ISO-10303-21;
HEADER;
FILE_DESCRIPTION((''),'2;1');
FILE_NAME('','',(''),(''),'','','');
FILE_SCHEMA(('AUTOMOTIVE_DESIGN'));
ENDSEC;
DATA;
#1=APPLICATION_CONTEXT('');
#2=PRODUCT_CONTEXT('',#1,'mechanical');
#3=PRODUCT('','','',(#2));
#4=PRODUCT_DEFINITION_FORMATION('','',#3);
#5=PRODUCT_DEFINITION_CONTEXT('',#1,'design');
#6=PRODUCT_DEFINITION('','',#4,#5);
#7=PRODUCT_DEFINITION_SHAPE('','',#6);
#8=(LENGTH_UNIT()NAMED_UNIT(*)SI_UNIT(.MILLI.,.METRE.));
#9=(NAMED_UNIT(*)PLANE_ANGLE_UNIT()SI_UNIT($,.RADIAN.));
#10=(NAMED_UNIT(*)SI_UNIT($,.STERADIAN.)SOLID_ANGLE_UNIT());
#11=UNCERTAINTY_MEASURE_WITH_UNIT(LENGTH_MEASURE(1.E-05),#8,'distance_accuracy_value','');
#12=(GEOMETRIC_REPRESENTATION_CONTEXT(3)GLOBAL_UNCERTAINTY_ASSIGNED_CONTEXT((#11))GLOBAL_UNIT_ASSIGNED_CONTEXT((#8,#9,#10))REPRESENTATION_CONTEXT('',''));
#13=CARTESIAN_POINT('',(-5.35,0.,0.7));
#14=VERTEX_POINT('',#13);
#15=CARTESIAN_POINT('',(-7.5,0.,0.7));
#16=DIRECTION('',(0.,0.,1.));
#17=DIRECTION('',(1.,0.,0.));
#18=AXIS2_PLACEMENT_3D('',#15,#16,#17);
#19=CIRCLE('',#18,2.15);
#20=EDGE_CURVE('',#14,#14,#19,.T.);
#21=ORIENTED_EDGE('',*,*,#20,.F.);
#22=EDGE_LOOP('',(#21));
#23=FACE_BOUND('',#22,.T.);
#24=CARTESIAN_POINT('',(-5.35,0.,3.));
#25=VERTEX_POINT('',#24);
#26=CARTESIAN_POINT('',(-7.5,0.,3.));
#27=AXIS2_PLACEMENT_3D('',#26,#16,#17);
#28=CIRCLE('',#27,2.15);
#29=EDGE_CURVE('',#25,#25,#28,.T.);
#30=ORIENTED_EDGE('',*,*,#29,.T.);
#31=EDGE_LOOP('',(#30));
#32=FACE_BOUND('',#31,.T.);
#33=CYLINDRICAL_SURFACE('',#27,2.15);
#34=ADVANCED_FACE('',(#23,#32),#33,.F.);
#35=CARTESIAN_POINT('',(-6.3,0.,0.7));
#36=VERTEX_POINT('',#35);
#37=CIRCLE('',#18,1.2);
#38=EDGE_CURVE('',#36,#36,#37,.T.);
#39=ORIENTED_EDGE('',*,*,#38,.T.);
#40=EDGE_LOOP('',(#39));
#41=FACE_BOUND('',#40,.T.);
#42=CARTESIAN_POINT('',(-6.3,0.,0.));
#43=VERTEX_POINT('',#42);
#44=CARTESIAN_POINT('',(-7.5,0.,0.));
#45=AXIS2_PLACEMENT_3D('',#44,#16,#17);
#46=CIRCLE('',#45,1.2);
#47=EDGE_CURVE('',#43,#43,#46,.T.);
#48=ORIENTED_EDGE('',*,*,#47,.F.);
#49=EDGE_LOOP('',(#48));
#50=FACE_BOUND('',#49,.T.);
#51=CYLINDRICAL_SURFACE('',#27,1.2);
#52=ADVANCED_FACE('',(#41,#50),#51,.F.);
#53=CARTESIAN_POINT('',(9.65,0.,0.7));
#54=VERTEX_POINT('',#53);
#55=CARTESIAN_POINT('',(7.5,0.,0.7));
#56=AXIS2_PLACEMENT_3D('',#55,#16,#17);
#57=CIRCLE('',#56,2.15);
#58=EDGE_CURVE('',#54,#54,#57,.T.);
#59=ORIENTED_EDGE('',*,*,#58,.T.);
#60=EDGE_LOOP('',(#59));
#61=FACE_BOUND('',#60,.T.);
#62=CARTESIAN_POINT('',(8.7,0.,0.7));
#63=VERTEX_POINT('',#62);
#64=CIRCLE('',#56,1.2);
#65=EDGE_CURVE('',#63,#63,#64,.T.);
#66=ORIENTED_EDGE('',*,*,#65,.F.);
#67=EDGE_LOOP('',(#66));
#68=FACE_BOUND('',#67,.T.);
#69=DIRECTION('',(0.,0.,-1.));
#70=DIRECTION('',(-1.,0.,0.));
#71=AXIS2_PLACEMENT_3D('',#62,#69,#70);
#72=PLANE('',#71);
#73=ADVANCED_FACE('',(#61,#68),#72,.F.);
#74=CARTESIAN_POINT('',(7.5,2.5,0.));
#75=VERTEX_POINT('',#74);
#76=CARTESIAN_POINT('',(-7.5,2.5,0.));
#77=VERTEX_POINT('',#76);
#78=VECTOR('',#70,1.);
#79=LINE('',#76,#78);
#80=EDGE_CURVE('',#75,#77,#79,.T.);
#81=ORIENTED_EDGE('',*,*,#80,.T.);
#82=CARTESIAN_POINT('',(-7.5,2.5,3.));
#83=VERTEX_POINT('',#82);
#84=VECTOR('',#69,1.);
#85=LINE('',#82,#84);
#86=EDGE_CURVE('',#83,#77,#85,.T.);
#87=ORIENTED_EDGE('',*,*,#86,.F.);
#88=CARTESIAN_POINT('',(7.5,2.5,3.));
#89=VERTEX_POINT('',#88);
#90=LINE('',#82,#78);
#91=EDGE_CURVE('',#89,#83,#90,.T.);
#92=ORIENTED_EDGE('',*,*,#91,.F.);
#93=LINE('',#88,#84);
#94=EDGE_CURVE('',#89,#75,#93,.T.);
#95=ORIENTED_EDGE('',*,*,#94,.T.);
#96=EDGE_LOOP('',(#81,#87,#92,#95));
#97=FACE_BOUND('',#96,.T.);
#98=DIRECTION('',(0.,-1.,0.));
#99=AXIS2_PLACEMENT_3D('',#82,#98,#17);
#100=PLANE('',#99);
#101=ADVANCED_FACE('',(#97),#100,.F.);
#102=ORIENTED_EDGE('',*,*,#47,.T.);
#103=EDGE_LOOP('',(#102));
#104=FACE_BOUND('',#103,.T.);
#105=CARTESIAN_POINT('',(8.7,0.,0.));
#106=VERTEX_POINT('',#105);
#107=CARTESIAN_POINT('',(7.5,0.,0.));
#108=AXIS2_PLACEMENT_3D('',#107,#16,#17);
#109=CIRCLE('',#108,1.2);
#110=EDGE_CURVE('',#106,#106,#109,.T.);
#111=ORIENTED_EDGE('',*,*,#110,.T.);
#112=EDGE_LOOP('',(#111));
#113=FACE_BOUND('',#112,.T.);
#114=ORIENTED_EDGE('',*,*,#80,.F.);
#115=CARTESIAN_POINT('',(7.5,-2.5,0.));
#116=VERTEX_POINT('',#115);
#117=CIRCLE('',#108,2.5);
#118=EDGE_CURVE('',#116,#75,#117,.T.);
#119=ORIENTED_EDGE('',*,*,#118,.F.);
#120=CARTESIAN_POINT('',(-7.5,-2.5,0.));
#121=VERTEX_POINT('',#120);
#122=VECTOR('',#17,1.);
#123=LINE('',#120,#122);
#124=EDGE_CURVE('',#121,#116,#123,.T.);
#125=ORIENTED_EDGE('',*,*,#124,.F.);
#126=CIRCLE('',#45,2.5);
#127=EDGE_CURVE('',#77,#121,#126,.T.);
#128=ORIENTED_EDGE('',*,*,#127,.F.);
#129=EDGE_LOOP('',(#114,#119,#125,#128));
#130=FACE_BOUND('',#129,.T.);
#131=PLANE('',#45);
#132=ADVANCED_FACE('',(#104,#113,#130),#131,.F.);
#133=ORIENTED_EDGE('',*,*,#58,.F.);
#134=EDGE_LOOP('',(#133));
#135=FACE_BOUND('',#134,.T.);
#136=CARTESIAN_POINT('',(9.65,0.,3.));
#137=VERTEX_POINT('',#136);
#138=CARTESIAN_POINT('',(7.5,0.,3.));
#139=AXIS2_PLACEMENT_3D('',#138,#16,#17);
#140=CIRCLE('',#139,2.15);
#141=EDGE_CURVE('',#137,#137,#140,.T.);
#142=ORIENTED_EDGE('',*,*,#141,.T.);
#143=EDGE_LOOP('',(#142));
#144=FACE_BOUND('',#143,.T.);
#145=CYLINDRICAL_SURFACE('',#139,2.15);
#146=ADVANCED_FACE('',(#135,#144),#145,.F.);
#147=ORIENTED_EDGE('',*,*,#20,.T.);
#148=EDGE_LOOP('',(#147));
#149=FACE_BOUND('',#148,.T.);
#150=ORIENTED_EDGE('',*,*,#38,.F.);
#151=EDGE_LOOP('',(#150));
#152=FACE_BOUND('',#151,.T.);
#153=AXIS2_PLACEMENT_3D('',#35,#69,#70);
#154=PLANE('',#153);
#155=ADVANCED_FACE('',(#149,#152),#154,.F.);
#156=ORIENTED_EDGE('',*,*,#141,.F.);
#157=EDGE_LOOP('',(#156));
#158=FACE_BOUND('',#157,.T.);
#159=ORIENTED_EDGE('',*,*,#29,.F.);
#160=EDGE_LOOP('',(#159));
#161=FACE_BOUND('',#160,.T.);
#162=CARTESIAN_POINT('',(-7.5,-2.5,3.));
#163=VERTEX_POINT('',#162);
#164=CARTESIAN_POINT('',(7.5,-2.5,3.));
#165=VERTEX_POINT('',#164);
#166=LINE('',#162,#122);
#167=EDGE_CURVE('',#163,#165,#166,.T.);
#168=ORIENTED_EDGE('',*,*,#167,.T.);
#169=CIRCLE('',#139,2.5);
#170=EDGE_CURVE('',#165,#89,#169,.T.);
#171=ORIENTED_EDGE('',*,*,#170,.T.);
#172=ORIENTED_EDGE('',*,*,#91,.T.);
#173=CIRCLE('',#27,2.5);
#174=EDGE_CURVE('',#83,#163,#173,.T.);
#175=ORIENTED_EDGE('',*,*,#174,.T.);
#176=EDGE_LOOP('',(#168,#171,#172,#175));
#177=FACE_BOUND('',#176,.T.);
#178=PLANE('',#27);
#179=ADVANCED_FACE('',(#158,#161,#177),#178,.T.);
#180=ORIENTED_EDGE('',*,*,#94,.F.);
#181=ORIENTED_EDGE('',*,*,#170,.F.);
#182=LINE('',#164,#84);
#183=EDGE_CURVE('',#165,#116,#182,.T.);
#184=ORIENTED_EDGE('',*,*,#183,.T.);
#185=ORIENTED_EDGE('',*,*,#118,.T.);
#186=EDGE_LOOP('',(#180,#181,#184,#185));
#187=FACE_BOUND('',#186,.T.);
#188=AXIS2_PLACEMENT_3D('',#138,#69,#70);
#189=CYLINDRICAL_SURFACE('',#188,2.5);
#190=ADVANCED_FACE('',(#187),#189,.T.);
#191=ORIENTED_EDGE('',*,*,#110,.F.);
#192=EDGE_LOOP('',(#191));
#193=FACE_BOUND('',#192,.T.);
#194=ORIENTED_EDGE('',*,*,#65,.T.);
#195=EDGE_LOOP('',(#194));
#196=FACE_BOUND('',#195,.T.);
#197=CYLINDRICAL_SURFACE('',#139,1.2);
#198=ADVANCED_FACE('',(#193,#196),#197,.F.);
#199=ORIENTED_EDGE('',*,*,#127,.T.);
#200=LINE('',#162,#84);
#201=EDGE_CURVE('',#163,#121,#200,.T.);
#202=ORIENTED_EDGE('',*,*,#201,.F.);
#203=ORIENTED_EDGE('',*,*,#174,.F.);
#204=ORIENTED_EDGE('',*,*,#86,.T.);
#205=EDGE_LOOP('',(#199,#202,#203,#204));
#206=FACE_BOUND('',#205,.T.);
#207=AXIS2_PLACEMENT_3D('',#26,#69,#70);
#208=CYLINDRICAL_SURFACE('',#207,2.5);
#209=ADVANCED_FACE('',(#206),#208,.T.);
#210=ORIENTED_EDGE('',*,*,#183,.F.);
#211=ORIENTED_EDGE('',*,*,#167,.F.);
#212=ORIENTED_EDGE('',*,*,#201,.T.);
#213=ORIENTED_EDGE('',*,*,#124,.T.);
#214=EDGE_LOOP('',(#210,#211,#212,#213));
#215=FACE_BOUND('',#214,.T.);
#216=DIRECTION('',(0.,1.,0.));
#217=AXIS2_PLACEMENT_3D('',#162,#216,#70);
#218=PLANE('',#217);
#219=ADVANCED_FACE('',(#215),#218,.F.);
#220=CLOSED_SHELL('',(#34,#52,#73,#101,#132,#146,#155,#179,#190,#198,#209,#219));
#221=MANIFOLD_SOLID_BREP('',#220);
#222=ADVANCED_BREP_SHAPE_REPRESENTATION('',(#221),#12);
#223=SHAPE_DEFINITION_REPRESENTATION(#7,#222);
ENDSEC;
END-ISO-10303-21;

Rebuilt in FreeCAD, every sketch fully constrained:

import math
import FreeCAD as App
import Part
import Sketcher

doc = App.newDocument("Part")
body = doc.addObject("PartDesign::Body", "Body")

# Sketch on XY plane
sketch1 = body.newObject("Sketcher::SketchObject", "Sketch")
sketch1.AttachmentSupport = (doc.getObject("XY_Plane"), [""])
sketch1.MapMode = "FlatFace"
sketch1.addGeometry(Part.LineSegment(App.Vector(7.5, 2.5, 0), App.Vector(-7.5, 2.5, 0)), False)
sketch1.addGeometry(Part.ArcOfCircle(Part.Circle(App.Vector(-7.5, 0, 0), App.Vector(0, 0, 1), 2.5), math.radians(90), math.radians(270)), False)
sketch1.addGeometry(Part.LineSegment(App.Vector(-7.5, -2.5, 0), App.Vector(7.5, -2.5, 0)), False)
sketch1.addGeometry(Part.ArcOfCircle(Part.Circle(App.Vector(7.5, 0, 0), App.Vector(0, 0, 1), 2.5), math.radians(-90), math.radians(90)), False)
sketch1.addConstraint(Sketcher.Constraint("Tangent", 0, 2, 1, 1))
sketch1.addConstraint(Sketcher.Constraint("Tangent", 1, 2, 2, 1))
sketch1.addConstraint(Sketcher.Constraint("Tangent", 2, 2, 3, 1))
sketch1.addConstraint(Sketcher.Constraint("Tangent", 3, 2, 0, 1))
sketch1.addConstraint(Sketcher.Constraint("Horizontal", 0))
sketch1.addConstraint(Sketcher.Constraint("Horizontal", 2))
sketch1.addConstraint(Sketcher.Constraint("Symmetric", 1, 3, 3, 3, -1, 1))
sketch1.addConstraint(Sketcher.Constraint("Radius", 1, 2.5))
sketch1.addConstraint(Sketcher.Constraint("DistanceX", 0, 2, 0, 1, 15.0))
pad1 = body.newObject("PartDesign::Pad", "Pad")
pad1.Profile = sketch1
pad1.Length = 3

# Sketch on XY plane
sketch2 = body.newObject("Sketcher::SketchObject", "Sketch001")
sketch2.AttachmentSupport = (doc.getObject("XY_Plane"), [""])
sketch2.MapMode = "FlatFace"
sketch2.AttachmentOffset = App.Placement(App.Vector(0, 0, 3), App.Rotation())
sketch2.addGeometry(Part.Circle(App.Vector(-7.5, 0, 0), App.Vector(0, 0, 1), 1.2), False)
sketch2.addGeometry(Part.Circle(App.Vector(7.5, 0, 0), App.Vector(0, 0, 1), 1.2), False)
sketch2.addConstraint(Sketcher.Constraint("Equal", 0, 1))
sketch2.addConstraint(Sketcher.Constraint("Symmetric", 0, 3, 1, 3, -1, 1))
sketch2.addConstraint(Sketcher.Constraint("PointOnObject", 0, 3, -1))
sketch2.addConstraint(Sketcher.Constraint("Diameter", 0, 2.4))
sketch2.addConstraint(Sketcher.Constraint("DistanceX", 0, 3, 1, 3, 15.0))
doc.recompute()
hole = body.newObject("PartDesign::Hole", "Hole")
hole.Profile = sketch2
hole.ThreadType = "None"
hole.Diameter = 2.4
hole.DepthType = "Dimension"
hole.Depth = 5.2
hole.DrillPoint = "Angled"
hole.DrillPointAngle = 118
hole.HoleCutType = "Counterbore"
hole.HoleCutDiameter = 4.3
hole.HoleCutDepth = 2.3

doc.recompute()
